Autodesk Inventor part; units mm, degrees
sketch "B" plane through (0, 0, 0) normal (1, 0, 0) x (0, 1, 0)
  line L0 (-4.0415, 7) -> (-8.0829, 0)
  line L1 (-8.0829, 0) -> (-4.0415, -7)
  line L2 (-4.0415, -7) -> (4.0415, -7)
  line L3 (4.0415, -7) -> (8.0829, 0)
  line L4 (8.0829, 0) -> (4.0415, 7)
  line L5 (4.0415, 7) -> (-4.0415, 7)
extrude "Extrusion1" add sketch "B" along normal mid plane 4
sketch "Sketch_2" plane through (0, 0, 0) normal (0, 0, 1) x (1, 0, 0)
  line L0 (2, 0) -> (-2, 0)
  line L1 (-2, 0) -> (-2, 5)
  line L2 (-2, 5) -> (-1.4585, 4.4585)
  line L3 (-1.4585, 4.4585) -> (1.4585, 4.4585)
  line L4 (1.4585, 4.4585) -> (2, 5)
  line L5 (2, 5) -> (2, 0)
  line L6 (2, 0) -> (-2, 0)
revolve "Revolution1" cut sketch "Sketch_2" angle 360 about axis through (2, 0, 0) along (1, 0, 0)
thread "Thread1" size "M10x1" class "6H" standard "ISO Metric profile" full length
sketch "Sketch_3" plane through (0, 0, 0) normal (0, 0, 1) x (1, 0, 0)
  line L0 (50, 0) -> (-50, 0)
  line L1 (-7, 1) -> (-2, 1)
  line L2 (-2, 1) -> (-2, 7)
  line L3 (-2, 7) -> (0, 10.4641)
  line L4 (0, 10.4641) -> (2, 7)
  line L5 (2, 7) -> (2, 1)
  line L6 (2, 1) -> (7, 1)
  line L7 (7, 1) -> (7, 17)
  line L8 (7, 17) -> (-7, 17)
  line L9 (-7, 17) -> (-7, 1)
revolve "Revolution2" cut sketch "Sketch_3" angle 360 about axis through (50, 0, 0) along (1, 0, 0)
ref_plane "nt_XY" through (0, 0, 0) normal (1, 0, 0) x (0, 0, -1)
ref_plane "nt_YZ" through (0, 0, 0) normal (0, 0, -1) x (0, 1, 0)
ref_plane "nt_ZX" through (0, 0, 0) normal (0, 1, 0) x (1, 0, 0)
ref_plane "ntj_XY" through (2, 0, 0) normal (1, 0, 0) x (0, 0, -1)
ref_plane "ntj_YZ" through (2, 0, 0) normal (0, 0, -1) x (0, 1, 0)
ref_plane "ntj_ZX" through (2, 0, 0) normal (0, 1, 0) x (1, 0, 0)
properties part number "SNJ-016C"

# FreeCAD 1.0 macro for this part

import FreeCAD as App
import Part
import Sketcher
from FreeCAD import Vector
Q = App.Units.Quantity

doc = App.newDocument("Part")
body = doc.addObject("PartDesign::Body", "Body")

# Sketch on YZ plane
sketch1 = doc.addObject("Sketcher::SketchObject", "Sketch")
body.addObject(sketch1)
sketch1.AttachmentSupport = (doc.YZ_Plane, [""])
sketch1.MapMode = "FlatFace"
sketch1.addGeometry(Part.LineSegment(Vector(4.0415, 7, 0), Vector(-4.0415, 7, 0)), False)
sketch1.addGeometry(Part.LineSegment(Vector(-4.0415, 7, 0), Vector(-8.0829, 0, 0)), False)
sketch1.addGeometry(Part.LineSegment(Vector(-8.0829, 0, 0), Vector(-4.0415, -7, 0)), False)
sketch1.addGeometry(Part.LineSegment(Vector(-4.0415, -7, 0), Vector(4.0415, -7, 0)), False)
sketch1.addGeometry(Part.LineSegment(Vector(4.0415, -7, 0), Vector(8.0829, 0, 0)), False)
sketch1.addGeometry(Part.LineSegment(Vector(8.0829, 0, 0), Vector(4.0415, 7, 0)), False)
sketch1.addConstraint(Sketcher.Constraint("Coincident", 0, 2, 1, 1))
sketch1.addConstraint(Sketcher.Constraint("Coincident", 1, 2, 2, 1))
sketch1.addConstraint(Sketcher.Constraint("Coincident", 2, 2, 3, 1))
sketch1.addConstraint(Sketcher.Constraint("Coincident", 3, 2, 4, 1))
sketch1.addConstraint(Sketcher.Constraint("Coincident", 4, 2, 5, 1))
sketch1.addConstraint(Sketcher.Constraint("Coincident", 5, 2, 0, 1))
sketch1.addConstraint(Sketcher.Constraint("Horizontal", 0))
sketch1.addConstraint(Sketcher.Constraint("Horizontal", 3))
sketch1.addConstraint(Sketcher.Constraint("Symmetric", 0, 2, 3, 2, -1, 1))
sketch1.addConstraint(Sketcher.Constraint("Symmetric", 1, 2, 4, 2, -1, 1))
sketch1.addConstraint(Sketcher.Constraint("PointOnObject", 1, 2, -1))
sketch1.addConstraint(Sketcher.Constraint("Parallel", 2, 5))
sketch1.addConstraint(Sketcher.Constraint("Vertical", 0, 2, 2, 2))
sketch1.addConstraint(Sketcher.Constraint("Angle", 1, Q("-119.9997 deg")))
sketch1.addConstraint(Sketcher.Constraint("DistanceY", -1, 1, 0, 2, 7.0))
sketch1.addConstraint(Sketcher.Constraint("DistanceX", 0, 2, 0, 1, 8.083))
pad1 = doc.addObject("PartDesign::Pad", "Pad")
body.addObject(pad1)
pad1.Profile = sketch1
pad1.Length = 4
pad1.Midplane = True

# Sketch on XY plane
sketch2 = doc.addObject("Sketcher::SketchObject", "Sketch001")
body.addObject(sketch2)
sketch2.AttachmentSupport = (doc.XY_Plane, [""])
sketch2.MapMode = "FlatFace"
sketch2.addGeometry(Part.LineSegment(Vector(-2, 0, 0), Vector(2, 0, 0)), False)
sketch2.addGeometry(Part.LineSegment(Vector(2, 0, 0), Vector(2, 5, 0)), False)
sketch2.addGeometry(Part.LineSegment(Vector(2, 5, 0), Vector(1.4585, 4.4585, 0)), False)
sketch2.addGeometry(Part.LineSegment(Vector(1.4585, 4.4585, 0), Vector(-1.4585, 4.4585, 0)), False)
sketch2.addGeometry(Part.LineSegment(Vector(-1.4585, 4.4585, 0), Vector(-2, 5, 0)), False)
sketch2.addGeometry(Part.LineSegment(Vector(-2, 5, 0), Vector(-2, 0, 0)), False)
sketch2.addConstraint(Sketcher.Constraint("Coincident", 0, 2, 1, 1))
sketch2.addConstraint(Sketcher.Constraint("Coincident", 1, 2, 2, 1))
sketch2.addConstraint(Sketcher.Constraint("Coincident", 2, 2, 3, 1))
sketch2.addConstraint(Sketcher.Constraint("Coincident", 3, 2, 4, 1))
sketch2.addConstraint(Sketcher.Constraint("Coincident", 4, 2, 5, 1))
sketch2.addConstraint(Sketcher.Constraint("Coincident", 5, 2, 0, 1))
sketch2.addConstraint(Sketcher.Constraint("Horizontal", 0))
sketch2.addConstraint(Sketcher.Constraint("Vertical", 1))
sketch2.addConstraint(Sketcher.Constraint("Horizontal", 3))
sketch2.addConstraint(Sketcher.Constraint("Vertical", 5))
sketch2.addConstraint(Sketcher.Constraint("Symmetric", 0, 2, 5, 2, -1, 1))
sketch2.addConstraint(Sketcher.Constraint("Perpendicular", 2, 4))
sketch2.addConstraint(Sketcher.Constraint("Horizontal", 1, 2, 4, 2))
sketch2.addConstraint(Sketcher.Constraint("Equal", 2, 4))
sketch2.addConstraint(Sketcher.Constraint("DistanceX", 0, 1, 0, 2, 4.0))
sketch2.addConstraint(Sketcher.Constraint("DistanceY", 1, 1, 1, 2, 5.0))
sketch2.addConstraint(Sketcher.Constraint("DistanceX", 3, 2, 3, 1, 2.917))
groove = doc.addObject("PartDesign::Groove", "Groove")
body.addObject(groove)
groove.Profile = sketch2
groove.ReferenceAxis = (sketch2, ["H_Axis"])
groove.Angle = 360

# Sketch on XY plane
sketch3 = doc.addObject("Sketcher::SketchObject", "Sketch002")
body.addObject(sketch3)
sketch3.AttachmentSupport = (doc.XY_Plane, [""])
sketch3.MapMode = "FlatFace"
sketch3.addGeometry(Part.LineSegment(Vector(-7, 17, 0), Vector(-7, 1, 0)), False)
sketch3.addGeometry(Part.LineSegment(Vector(-7, 1, 0), Vector(-2, 1, 0)), False)
sketch3.addGeometry(Part.LineSegment(Vector(-2, 1, 0), Vector(-2, 7, 0)), False)
sketch3.addGeometry(Part.LineSegment(Vector(-2, 7, 0), Vector(0, 10.4641, 0)), False)
sketch3.addGeometry(Part.LineSegment(Vector(0, 10.4641, 0), Vector(2, 7, 0)), False)
sketch3.addGeometry(Part.LineSegment(Vector(2, 7, 0), Vector(2, 1, 0)), False)
sketch3.addGeometry(Part.LineSegment(Vector(2, 1, 0), Vector(7, 1, 0)), False)
sketch3.addGeometry(Part.LineSegment(Vector(7, 1, 0), Vector(7, 17, 0)), False)
sketch3.addGeometry(Part.LineSegment(Vector(7, 17, 0), Vector(-7, 17, 0)), False)
sketch3.addConstraint(Sketcher.Constraint("Coincident", 0, 2, 1, 1))
sketch3.addConstraint(Sketcher.Constraint("Coincident", 1, 2, 2, 1))
sketch3.addConstraint(Sketcher.Constraint("Coincident", 2, 2, 3, 1))
sketch3.addConstraint(Sketcher.Constraint("Coincident", 3, 2, 4, 1))
sketch3.addConstraint(Sketcher.Constraint("Coincident", 4, 2, 5, 1))
sketch3.addConstraint(Sketcher.Constraint("Coincident", 5, 2, 6, 1))
sketch3.addConstraint(Sketcher.Constraint("Coincident", 6, 2, 7, 1))
sketch3.addConstraint(Sketcher.Constraint("Coincident", 7, 2, 8, 1))
sketch3.addConstraint(Sketcher.Constraint("Coincident", 8, 2, 0, 1))
sketch3.addConstraint(Sketcher.Constraint("Vertical", 0))
sketch3.addConstraint(Sketcher.Constraint("Horizontal", 1))
sketch3.addConstraint(Sketcher.Constraint("Vertical", 2))
sketch3.addConstraint(Sketcher.Constraint("Vertical", 5))
sketch3.addConstraint(Sketcher.Constraint("Horizontal", 6))
sketch3.addConstraint(Sketcher.Constraint("Vertical", 7))
sketch3.addConstraint(Sketcher.Constraint("Horizontal", 8))
sketch3.addConstraint(Sketcher.Constraint("Symmetric", 2, 2, 4, 2, -2))
sketch3.addConstraint(Sketcher.Constraint("Symmetric", 0, 2, 6, 2, -2))
sketch3.addConstraint(Sketcher.Constraint("PointOnObject", 3, 2, -2))
sketch3.addConstraint(Sketcher.Constraint("DistanceX", 1, 1, 1, 2, 5.0))
sketch3.addConstraint(Sketcher.Constraint("DistanceX", 8, 2, 8, 1, 14.0))
sketch3.addConstraint(Sketcher.Constraint("DistanceY", 0, 2, 0, 1, 16.0))
sketch3.addConstraint(Sketcher.Constraint("DistanceY", 2, 1, 2, 2, 6.0))
sketch3.addConstraint(Sketcher.Constraint("Angle", 3, Q("60 deg")))
sketch3.addConstraint(Sketcher.Constraint("DistanceY", -1, 1, 0, 2, 1.0))
groove2 = doc.addObject("PartDesign::Groove", "Groove001")
body.addObject(groove2)
groove2.Profile = sketch3
groove2.ReferenceAxis = (sketch3, ["H_Axis"])
groove2.Angle = 360

doc.recompute()
